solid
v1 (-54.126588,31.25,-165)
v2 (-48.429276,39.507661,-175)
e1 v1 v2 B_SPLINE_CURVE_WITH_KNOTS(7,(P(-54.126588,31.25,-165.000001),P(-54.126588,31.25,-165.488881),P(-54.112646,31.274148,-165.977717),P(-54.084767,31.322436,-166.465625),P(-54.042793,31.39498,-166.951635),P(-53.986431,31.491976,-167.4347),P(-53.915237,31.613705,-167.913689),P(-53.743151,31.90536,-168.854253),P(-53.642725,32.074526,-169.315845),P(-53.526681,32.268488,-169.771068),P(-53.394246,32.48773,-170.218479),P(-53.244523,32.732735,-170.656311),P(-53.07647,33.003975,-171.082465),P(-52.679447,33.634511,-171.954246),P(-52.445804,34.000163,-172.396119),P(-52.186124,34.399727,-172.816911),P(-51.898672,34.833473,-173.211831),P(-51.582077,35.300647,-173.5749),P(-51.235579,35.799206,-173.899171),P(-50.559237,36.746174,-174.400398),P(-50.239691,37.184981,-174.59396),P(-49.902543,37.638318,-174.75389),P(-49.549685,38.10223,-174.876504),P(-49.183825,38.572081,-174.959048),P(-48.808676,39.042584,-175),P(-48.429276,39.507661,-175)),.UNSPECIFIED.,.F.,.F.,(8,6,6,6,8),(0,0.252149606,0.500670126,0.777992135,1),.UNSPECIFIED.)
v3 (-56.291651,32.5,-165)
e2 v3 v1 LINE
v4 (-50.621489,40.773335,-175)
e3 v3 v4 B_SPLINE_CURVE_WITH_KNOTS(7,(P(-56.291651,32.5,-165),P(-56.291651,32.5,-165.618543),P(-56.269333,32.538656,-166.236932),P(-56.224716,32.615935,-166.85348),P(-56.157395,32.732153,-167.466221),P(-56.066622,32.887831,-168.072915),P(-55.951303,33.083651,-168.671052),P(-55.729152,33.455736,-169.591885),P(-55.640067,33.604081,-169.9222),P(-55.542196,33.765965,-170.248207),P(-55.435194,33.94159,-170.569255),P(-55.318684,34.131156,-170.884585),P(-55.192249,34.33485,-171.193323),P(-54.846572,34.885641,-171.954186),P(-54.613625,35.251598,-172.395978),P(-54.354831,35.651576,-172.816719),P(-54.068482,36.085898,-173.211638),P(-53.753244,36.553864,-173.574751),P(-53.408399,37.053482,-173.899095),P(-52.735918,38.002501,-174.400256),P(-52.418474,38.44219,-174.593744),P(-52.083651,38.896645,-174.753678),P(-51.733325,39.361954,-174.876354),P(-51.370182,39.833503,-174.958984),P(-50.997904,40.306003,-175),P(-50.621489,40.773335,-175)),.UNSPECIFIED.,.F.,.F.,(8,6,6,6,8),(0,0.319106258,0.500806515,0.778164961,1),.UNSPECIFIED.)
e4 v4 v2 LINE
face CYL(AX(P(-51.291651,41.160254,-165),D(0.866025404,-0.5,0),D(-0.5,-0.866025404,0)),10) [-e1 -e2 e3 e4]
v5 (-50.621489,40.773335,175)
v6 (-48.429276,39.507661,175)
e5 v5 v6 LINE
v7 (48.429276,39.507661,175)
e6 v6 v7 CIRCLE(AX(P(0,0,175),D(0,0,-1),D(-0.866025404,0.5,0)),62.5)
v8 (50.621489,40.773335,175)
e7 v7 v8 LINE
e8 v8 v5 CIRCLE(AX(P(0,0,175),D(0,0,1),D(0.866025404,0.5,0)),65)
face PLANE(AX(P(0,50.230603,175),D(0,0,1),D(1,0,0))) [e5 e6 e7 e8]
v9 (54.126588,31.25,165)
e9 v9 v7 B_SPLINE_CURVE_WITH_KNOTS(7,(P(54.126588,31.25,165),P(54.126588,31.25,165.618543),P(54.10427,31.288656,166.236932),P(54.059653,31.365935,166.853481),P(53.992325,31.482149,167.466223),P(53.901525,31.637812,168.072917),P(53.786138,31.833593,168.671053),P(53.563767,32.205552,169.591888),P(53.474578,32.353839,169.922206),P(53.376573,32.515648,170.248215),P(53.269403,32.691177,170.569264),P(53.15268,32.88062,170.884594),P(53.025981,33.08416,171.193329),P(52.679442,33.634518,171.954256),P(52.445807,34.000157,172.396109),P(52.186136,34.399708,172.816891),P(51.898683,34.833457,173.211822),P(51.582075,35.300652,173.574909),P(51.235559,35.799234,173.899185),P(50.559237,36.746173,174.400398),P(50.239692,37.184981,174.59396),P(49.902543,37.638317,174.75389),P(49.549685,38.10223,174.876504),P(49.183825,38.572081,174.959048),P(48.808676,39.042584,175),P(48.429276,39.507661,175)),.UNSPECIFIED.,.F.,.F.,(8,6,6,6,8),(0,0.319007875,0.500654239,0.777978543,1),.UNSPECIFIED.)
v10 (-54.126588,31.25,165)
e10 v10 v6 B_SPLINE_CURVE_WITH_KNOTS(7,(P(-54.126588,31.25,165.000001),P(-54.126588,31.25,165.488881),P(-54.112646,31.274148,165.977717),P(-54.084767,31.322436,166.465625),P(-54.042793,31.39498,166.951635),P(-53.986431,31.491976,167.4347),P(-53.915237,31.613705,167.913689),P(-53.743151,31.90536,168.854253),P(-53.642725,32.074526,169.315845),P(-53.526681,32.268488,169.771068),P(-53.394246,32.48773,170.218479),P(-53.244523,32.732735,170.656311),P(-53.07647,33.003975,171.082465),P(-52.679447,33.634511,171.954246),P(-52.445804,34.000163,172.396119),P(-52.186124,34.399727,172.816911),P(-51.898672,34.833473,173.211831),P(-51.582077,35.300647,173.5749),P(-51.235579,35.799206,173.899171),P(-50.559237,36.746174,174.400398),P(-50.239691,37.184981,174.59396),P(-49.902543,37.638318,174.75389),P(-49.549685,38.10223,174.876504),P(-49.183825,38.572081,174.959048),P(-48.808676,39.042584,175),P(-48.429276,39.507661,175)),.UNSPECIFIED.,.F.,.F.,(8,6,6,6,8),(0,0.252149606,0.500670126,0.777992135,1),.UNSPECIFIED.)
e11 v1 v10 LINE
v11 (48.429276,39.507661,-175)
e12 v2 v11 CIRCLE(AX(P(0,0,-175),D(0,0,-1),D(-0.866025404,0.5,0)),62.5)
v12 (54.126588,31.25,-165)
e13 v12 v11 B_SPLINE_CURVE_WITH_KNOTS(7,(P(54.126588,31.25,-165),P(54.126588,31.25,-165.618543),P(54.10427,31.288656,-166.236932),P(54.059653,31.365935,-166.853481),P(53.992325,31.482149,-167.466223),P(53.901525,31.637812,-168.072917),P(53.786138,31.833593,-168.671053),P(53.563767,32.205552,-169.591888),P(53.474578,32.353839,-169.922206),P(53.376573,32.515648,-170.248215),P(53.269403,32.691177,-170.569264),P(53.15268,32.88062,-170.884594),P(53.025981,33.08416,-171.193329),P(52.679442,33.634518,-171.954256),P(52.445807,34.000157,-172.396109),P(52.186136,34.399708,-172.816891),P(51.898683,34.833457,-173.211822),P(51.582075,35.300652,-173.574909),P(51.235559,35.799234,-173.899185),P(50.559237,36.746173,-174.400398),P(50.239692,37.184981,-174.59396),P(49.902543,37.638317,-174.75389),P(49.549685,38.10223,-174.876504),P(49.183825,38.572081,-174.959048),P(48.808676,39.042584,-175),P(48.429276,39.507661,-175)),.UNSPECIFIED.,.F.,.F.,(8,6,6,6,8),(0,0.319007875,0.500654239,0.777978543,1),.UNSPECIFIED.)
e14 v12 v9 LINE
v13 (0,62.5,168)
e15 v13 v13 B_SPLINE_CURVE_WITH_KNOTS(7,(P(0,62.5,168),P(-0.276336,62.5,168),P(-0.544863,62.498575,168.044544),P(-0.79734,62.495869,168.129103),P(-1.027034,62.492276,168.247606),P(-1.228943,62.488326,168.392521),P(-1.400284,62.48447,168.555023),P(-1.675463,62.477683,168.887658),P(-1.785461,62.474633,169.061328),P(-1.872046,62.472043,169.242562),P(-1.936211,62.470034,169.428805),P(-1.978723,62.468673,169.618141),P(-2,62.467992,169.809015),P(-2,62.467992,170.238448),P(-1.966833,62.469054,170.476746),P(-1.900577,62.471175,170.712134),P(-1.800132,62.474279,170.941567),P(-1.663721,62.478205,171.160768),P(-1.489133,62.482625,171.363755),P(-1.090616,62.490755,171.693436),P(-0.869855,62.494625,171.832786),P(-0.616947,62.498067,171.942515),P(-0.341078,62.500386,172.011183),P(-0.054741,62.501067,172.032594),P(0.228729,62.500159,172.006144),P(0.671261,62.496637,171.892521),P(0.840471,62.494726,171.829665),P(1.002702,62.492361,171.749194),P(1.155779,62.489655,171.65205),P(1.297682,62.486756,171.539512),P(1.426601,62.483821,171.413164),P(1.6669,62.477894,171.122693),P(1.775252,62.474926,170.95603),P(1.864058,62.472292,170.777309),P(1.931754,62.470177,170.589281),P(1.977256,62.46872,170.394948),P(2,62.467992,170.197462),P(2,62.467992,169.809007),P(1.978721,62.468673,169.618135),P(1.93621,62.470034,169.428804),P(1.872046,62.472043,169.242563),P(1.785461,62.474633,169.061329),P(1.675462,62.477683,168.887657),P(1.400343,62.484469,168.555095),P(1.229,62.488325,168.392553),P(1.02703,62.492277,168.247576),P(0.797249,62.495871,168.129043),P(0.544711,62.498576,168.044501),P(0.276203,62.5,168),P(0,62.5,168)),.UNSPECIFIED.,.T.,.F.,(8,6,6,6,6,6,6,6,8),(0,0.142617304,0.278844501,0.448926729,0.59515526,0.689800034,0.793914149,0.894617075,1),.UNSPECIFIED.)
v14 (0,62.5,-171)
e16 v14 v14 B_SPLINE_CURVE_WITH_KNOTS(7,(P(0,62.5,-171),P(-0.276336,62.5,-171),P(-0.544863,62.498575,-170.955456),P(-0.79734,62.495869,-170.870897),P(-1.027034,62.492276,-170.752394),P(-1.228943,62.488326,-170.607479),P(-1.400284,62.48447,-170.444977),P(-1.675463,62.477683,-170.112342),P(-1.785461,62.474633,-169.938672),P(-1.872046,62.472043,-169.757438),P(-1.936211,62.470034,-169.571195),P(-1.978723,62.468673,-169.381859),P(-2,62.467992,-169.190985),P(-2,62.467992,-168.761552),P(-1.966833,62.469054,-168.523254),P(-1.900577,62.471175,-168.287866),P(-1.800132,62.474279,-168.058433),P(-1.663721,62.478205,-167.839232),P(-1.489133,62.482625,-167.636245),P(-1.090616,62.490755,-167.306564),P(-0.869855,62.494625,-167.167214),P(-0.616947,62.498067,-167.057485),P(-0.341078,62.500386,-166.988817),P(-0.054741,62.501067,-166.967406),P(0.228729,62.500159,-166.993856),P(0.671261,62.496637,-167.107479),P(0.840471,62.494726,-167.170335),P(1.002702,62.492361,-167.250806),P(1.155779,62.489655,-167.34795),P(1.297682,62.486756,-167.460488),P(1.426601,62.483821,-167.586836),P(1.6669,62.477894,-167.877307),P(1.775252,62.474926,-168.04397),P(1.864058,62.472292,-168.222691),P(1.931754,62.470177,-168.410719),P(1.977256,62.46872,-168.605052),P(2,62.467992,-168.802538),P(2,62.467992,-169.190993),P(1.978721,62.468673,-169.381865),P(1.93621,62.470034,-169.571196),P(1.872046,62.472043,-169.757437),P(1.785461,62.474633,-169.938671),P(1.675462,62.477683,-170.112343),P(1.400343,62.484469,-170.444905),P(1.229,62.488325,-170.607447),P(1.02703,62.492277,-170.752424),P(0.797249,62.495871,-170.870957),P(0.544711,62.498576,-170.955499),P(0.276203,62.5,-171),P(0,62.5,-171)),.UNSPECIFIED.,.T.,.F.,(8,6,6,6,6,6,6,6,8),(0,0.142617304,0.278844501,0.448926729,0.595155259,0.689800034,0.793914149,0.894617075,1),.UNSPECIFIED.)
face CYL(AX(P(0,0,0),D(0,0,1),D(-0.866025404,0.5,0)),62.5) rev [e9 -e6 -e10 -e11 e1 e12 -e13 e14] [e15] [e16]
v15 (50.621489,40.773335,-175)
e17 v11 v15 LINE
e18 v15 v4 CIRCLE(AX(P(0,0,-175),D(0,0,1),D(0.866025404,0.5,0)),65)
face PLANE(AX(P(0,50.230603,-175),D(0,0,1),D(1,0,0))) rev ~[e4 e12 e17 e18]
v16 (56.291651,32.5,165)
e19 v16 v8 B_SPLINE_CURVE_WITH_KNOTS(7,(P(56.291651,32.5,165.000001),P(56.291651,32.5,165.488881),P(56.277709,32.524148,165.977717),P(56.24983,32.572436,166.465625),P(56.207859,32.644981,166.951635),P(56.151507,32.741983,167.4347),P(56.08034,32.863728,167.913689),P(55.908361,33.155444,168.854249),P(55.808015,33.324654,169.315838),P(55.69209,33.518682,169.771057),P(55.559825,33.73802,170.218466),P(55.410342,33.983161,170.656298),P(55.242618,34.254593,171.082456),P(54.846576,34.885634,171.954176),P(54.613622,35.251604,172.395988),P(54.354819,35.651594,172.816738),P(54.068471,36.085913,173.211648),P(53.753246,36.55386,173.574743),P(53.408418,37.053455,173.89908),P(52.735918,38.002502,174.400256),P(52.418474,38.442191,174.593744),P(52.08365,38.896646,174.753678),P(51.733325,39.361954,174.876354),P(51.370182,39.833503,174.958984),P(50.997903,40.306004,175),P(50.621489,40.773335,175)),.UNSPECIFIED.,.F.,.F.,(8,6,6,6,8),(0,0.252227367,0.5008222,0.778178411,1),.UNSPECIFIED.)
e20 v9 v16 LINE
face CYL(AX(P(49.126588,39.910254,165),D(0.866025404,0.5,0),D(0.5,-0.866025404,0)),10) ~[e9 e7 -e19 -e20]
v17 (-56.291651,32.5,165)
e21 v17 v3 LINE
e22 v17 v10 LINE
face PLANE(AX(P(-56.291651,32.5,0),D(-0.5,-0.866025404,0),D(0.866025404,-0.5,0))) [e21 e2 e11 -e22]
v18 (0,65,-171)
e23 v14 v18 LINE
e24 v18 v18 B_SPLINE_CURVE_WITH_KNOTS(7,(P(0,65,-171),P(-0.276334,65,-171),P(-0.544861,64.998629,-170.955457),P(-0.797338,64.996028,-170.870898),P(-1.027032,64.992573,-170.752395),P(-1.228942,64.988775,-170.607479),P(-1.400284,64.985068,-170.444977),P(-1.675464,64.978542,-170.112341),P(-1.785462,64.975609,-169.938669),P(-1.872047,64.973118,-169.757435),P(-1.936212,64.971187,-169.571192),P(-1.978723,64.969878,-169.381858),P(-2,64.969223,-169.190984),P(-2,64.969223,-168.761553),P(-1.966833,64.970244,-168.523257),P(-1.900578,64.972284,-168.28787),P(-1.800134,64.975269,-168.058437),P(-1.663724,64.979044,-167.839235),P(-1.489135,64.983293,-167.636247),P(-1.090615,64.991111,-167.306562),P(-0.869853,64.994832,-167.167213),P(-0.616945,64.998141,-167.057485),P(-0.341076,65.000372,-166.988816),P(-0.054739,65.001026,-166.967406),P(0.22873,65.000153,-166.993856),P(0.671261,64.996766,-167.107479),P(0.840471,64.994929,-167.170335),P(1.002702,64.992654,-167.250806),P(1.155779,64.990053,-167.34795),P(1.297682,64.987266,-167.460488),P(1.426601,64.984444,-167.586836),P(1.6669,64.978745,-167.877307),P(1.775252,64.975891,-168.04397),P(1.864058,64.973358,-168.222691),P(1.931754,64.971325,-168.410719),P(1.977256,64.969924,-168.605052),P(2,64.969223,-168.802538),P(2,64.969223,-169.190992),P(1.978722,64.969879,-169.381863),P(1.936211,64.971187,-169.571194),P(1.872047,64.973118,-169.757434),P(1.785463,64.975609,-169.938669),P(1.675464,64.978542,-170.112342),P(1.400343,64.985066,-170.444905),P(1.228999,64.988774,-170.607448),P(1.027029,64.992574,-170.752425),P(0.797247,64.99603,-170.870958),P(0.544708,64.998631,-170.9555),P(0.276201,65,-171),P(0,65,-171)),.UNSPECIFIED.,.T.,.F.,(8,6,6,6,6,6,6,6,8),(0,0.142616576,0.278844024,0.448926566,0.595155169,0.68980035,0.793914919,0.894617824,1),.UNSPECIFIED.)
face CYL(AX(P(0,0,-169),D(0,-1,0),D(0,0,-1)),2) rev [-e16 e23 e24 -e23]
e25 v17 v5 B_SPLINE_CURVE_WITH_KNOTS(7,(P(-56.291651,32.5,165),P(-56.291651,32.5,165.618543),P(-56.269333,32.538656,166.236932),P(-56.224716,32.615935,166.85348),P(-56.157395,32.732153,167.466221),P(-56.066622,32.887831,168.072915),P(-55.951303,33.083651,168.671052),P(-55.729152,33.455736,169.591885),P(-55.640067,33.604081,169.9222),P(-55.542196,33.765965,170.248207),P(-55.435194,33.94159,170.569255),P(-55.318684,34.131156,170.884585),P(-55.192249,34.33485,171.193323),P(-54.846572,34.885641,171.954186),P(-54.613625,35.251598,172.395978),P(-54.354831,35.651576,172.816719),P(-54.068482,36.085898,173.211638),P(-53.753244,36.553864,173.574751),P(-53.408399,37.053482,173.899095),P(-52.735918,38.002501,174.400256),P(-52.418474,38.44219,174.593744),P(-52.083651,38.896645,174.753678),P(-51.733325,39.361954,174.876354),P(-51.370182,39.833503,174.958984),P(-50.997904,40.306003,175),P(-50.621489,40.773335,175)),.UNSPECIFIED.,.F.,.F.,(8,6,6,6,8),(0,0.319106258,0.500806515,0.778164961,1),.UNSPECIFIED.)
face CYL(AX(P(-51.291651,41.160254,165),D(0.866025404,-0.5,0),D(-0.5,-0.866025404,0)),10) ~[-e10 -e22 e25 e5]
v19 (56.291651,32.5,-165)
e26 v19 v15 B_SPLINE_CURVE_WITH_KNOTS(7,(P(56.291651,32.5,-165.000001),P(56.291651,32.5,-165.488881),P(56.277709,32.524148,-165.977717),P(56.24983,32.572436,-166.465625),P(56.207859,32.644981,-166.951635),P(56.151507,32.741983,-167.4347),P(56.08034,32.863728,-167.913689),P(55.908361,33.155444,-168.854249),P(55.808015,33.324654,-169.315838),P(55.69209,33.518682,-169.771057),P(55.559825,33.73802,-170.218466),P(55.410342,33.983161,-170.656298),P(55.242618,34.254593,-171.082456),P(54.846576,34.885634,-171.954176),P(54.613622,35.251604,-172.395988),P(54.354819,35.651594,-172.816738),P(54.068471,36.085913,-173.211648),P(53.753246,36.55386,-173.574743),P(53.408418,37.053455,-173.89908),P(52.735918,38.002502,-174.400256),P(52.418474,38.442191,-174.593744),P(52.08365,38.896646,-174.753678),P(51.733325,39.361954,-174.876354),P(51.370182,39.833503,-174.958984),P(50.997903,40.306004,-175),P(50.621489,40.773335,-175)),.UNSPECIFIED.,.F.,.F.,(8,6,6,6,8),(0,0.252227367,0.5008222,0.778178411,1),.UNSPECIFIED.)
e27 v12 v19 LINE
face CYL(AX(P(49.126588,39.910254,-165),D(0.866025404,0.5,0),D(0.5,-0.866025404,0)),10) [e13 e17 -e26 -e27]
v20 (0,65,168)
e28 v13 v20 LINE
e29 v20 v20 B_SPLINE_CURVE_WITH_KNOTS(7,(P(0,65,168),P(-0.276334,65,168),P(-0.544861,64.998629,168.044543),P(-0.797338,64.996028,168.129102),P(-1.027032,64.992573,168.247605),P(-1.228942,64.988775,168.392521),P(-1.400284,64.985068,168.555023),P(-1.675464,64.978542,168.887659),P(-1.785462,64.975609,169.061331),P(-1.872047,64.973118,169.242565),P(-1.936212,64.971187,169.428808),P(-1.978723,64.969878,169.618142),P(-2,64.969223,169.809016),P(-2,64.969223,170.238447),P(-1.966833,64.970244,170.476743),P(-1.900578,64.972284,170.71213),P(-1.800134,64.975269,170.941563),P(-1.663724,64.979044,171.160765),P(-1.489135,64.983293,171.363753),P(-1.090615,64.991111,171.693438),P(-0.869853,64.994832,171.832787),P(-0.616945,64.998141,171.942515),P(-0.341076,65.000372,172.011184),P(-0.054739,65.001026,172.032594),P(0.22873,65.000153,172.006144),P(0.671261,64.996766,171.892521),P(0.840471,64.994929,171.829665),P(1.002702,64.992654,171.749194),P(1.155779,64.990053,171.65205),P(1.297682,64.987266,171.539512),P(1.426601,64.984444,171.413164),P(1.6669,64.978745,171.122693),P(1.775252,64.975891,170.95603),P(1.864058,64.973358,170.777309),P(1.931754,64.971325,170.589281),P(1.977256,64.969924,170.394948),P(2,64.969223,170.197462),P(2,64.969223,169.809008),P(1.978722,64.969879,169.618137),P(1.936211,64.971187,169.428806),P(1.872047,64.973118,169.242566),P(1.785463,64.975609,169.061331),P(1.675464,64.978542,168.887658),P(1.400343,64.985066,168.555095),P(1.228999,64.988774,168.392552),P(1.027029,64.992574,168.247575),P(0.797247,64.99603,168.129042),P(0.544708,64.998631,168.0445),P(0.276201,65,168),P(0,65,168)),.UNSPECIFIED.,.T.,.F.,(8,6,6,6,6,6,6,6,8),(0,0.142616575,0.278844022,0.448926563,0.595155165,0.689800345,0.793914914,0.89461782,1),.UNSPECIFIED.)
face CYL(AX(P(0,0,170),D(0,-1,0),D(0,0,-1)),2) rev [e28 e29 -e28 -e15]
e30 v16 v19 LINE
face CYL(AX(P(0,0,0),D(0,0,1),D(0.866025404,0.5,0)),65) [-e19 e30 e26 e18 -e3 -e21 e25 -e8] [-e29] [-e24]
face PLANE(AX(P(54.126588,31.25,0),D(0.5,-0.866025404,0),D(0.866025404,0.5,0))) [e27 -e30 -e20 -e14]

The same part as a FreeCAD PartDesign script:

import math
import FreeCAD as App
import Part
import Sketcher
Q = App.Units.Quantity


def edges_at(feature, points):
    """Names of the edges that pass closest to the given points."""
    edges = feature.Shape.Edges
    near = lambda p: min(range(len(edges)), key=lambda i: edges[i].distToShape(Part.Vertex(*p))[0])
    return sorted({f"Edge{near(p) + 1}" for p in points})

doc = App.newDocument("Part")
body = doc.addObject("PartDesign::Body", "Body")

sketch1 = doc.addObject("Sketcher::SketchObject", "Sketch")
body.addObject(sketch1)
sketch1.AttachmentSupport = (doc.XY_Plane, [""])
sketch1.MapMode = "FlatFace"
sketch1.addGeometry([
    Part.LineSegment(App.Vector(-56.291651, 32.5, 0), App.Vector(-54.126588, 31.25, 0)),
    Part.ArcOfCircle(Part.Circle(App.Vector(0, 0, 0), App.Vector(0, 0, 1), 62.5), math.radians(30), math.radians(150)),
    Part.LineSegment(App.Vector(54.126588, 31.25, 0), App.Vector(56.291651, 32.5, 0)),
    Part.ArcOfCircle(Part.Circle(App.Vector(0, 0, 0), App.Vector(0, 0, 1), 65), math.radians(30), math.radians(150)),
], False)
sketch1.addConstraint([
    Sketcher.Constraint("Coincident", 0, 2, 1, 2),
    Sketcher.Constraint("Coincident", 1, 1, 2, 1),
    Sketcher.Constraint("Coincident", 2, 2, 3, 1),
    Sketcher.Constraint("Coincident", 3, 2, 0, 1),
    Sketcher.Constraint("Coincident", 1, 3, -1, 1),
    Sketcher.Constraint("Coincident", 3, 3, -1, 1),
    Sketcher.Constraint("Horizontal", 0, 2, 1, 1),
    Sketcher.Constraint("Horizontal", 2, 2, 3, 2),
    Sketcher.Constraint("Radius", 3, Q("65 mm")),
    Sketcher.Constraint("Radius", 1, Q("62.5 mm")),
    Sketcher.Constraint("Angle", 0, Q("-30 deg")),
    Sketcher.Constraint("DistanceY", -1, 1, 2, 2, Q("32.5 mm")),
])
pad1 = doc.addObject("PartDesign::Pad", "Pad")
body.addObject(pad1)
pad1.Profile = sketch1
pad1.Length = 350
pad1.Midplane = True
doc.recompute()

fillet = doc.addObject("PartDesign::Fillet", "Fillet")
body.addObject(fillet)
fillet.Base = (pad1, edges_at(pad1, [
    (55.209, 31.875, 175),
    (55.209, 31.875, -175),
    (-55.209, 31.875, -175),
    (-55.209, 31.875, 175),
]))
fillet.Radius = 10

sketch2 = doc.addObject("Sketcher::SketchObject", "Sketch001")
body.addObject(sketch2)
sketch2.AttachmentSupport = (doc.XZ_Plane, [""])
sketch2.MapMode = "FlatFace"
sketch2.addGeometry([
    Part.Circle(App.Vector(0, 170, 0), App.Vector(0, 0, 1), 2),
    Part.Circle(App.Vector(0, -169, 0), App.Vector(0, 0, 1), 2),
], False)
sketch2.addConstraint([
    Sketcher.Constraint("Equal", 0, 1),
    Sketcher.Constraint("PointOnObject", 0, 3, -2),
    Sketcher.Constraint("PointOnObject", 1, 3, -2),
    Sketcher.Constraint("Diameter", 0, Q("4 mm")),
    Sketcher.Constraint("DistanceY", -1, 1, 0, 3, Q("170 mm")),
    Sketcher.Constraint("DistanceY", 1, 3, -1, 1, Q("169 mm")),
])
pocket1 = doc.addObject("PartDesign::Pocket", "Pocket")
body.addObject(pocket1)
pocket1.Profile = sketch2
pocket1.Length = 340

doc.recompute()
